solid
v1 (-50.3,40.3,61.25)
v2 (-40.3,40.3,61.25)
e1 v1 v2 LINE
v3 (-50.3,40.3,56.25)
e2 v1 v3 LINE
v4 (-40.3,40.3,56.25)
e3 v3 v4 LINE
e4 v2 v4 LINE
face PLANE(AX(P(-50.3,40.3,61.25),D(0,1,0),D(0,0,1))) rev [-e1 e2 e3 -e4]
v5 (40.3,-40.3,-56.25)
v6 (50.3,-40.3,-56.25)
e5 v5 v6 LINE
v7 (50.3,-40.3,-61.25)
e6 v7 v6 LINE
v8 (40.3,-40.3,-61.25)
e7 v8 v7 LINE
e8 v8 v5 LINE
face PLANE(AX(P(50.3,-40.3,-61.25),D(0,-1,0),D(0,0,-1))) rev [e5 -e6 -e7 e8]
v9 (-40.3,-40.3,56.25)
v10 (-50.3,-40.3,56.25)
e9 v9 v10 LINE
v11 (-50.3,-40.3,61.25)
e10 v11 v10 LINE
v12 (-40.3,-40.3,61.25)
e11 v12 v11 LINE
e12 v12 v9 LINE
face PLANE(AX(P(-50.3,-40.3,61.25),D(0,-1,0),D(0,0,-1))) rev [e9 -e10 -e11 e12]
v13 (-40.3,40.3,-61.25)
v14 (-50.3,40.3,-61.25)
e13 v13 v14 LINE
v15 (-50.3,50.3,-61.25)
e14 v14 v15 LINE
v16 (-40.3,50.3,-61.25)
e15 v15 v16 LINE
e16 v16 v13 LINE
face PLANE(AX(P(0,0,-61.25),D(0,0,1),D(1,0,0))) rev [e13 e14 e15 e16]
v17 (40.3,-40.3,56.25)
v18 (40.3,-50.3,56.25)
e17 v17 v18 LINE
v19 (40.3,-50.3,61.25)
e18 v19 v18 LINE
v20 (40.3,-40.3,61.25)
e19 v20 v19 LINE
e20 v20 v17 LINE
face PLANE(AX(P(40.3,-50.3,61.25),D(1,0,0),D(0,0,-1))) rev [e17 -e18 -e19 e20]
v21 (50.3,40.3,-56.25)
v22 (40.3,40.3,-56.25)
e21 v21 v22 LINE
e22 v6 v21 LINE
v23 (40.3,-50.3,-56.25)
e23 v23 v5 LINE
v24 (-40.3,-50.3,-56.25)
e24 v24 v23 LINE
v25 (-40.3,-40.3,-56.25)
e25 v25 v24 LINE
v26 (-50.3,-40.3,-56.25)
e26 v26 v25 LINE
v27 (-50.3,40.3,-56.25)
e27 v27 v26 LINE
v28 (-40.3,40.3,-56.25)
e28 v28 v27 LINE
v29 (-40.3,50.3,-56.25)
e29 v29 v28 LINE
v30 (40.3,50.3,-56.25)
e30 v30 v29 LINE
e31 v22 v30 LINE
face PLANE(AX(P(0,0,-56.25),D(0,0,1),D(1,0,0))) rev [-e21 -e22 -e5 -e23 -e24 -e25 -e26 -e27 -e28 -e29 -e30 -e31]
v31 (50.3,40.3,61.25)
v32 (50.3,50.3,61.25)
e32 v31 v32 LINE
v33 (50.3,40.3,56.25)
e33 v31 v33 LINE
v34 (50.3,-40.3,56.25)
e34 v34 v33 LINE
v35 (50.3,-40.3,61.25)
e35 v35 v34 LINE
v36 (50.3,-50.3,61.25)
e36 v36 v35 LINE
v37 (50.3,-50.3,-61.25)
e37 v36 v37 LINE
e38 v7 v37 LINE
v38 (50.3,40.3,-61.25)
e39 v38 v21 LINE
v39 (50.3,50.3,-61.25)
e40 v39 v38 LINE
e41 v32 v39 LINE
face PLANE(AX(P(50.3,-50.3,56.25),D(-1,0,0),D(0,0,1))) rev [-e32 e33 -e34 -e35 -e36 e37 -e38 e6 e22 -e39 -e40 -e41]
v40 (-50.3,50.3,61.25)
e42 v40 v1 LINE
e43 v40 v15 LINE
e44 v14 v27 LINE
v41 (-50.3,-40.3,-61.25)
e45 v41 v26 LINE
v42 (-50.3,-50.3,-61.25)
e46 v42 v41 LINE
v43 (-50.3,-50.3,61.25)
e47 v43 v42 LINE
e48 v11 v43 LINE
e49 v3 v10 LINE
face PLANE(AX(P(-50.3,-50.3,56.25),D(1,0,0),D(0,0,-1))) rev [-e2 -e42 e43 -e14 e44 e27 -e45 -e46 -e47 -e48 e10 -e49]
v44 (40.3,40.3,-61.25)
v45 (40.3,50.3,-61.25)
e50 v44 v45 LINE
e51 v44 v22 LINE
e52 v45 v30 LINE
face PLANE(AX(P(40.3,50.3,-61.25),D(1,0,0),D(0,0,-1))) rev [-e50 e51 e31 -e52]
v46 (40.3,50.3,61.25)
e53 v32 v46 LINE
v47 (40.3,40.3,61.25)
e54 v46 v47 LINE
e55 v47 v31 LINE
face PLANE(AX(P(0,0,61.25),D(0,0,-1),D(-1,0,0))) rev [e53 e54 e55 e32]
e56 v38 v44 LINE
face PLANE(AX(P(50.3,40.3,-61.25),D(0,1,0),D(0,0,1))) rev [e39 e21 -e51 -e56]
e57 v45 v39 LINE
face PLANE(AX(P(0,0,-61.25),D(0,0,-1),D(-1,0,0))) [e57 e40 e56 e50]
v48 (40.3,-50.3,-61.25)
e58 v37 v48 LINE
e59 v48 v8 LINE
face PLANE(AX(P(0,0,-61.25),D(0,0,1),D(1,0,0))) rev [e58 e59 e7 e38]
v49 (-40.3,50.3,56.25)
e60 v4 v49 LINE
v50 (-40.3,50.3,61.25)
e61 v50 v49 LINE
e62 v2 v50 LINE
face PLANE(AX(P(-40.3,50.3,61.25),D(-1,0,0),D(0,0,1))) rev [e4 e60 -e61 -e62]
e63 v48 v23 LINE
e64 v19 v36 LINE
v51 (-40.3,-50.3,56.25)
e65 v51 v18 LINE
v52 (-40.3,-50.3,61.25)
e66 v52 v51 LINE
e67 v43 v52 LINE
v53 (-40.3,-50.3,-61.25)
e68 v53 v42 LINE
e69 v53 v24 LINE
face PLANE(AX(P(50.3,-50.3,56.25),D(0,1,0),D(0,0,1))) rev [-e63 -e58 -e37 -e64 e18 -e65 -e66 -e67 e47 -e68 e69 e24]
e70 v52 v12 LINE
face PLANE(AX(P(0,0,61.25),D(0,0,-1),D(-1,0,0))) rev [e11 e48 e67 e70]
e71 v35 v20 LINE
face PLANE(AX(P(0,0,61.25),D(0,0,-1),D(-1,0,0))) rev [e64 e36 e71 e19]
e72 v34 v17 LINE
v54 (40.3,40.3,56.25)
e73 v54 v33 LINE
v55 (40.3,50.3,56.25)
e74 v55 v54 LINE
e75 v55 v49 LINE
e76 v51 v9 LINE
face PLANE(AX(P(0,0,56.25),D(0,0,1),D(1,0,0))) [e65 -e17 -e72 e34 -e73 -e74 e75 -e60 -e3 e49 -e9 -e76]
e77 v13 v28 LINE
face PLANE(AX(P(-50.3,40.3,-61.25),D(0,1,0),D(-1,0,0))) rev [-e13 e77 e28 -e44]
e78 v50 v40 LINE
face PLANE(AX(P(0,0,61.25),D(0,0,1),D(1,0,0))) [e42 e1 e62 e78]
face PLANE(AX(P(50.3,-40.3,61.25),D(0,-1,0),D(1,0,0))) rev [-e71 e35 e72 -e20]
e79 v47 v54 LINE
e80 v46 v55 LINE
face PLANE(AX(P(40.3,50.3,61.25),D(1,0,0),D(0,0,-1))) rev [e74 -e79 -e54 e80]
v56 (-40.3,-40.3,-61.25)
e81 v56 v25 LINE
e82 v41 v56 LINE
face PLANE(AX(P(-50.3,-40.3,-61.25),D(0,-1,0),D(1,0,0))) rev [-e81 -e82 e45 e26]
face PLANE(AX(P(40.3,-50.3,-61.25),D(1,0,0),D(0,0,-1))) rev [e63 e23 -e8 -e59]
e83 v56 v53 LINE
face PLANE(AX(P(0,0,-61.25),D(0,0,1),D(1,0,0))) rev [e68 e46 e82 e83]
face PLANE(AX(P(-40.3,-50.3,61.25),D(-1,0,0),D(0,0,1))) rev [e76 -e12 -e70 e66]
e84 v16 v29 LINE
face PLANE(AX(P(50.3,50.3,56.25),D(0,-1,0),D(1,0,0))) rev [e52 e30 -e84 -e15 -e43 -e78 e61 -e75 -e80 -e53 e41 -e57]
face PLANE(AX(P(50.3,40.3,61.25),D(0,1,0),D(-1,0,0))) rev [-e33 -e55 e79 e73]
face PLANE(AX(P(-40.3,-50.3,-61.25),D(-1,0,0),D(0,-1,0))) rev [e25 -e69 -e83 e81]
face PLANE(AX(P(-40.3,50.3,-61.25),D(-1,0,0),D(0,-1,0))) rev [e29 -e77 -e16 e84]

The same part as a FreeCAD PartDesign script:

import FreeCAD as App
import Part
import Sketcher
Q = App.Units.Quantity


def add_polygon(sketch, points):
    """Adds a closed chain of lines whose ends are joined by coincident constraints."""
    first, n = sketch.GeometryCount, len(points)
    for a, b in zip(points, points[1:] + points[:1]):
        sketch.addGeometry(Part.LineSegment(App.Vector(*a, 0), App.Vector(*b, 0)), False)
    for i in range(n):
        sketch.addConstraint(Sketcher.Constraint("Coincident", first + i, 2, first + (i + 1) % n, 1))

doc = App.newDocument("Part")
body = doc.addObject("PartDesign::Body", "Body")

# Sketch on XY plane
sketch1 = body.newObject("Sketcher::SketchObject", "Sketch")
sketch1.AttachmentSupport = (doc.getObject("XY_Plane"), [""])
sketch1.MapMode = "FlatFace"
add_polygon(sketch1, [(-50, 50), (-50, -50), (50, -50), (50, 50)])  # lines 0-3
sketch1.addConstraint([
    Sketcher.Constraint("Vertical", 0),
    Sketcher.Constraint("Horizontal", 1),
    Sketcher.Constraint("Vertical", 2),
    Sketcher.Constraint("Horizontal", 3),
    Sketcher.Constraint("Symmetric", 0, 2, 2, 2, -1, 1),
    Sketcher.Constraint("Equal", 3, 0),
    Sketcher.Constraint("DistanceX", 1, 1, 1, 2, Q("100.6 mm")),
])
pad1 = body.newObject("PartDesign::Pad", "Pad")
pad1.Profile = sketch1
pad1.Length = 112.5
pad1.Midplane = True

# Sketch on XY plane
sketch2 = body.newObject("Sketcher::SketchObject", "Sketch001")
sketch2.AttachmentSupport = (doc.getObject("XY_Plane"), [""])
sketch2.MapMode = "FlatFace"
sketch2.AttachmentOffset = App.Placement(App.Vector(0, 0, 56.25), App.Rotation())
add_polygon(sketch2, [(-50, 50), (-50, 40), (-40, 40), (-40, 50)])  # lines 0-3
add_polygon(sketch2, [(40, 50), (40, 40), (50, 40), (50, 50)])  # lines 4-7
add_polygon(sketch2, [(40, -40), (40, -50), (50, -50), (50, -40)])  # lines 8-11
add_polygon(sketch2, [(-50, -40), (-50, -50), (-40, -50), (-40, -40)])  # lines 12-15
sketch2.addConstraint([
    Sketcher.Constraint("Vertical", 0),
    Sketcher.Constraint("Horizontal", 1),
    Sketcher.Constraint("Vertical", 2),
    Sketcher.Constraint("Horizontal", 3),
    Sketcher.Constraint("Vertical", 4),
    Sketcher.Constraint("Horizontal", 5),
    Sketcher.Constraint("Vertical", 6),
    Sketcher.Constraint("Horizontal", 7),
    Sketcher.Constraint("Vertical", 8),
    Sketcher.Constraint("Horizontal", 9),
    Sketcher.Constraint("Vertical", 10),
    Sketcher.Constraint("Horizontal", 11),
    Sketcher.Constraint("Vertical", 12),
    Sketcher.Constraint("Horizontal", 13),
    Sketcher.Constraint("Vertical", 14),
    Sketcher.Constraint("Horizontal", 15),
    Sketcher.Constraint("Symmetric", 2, 2, 8, 2, -1, 1),
    Sketcher.Constraint("Symmetric", 0, 2, 10, 2, -1, 1),
    Sketcher.Constraint("Symmetric", 6, 2, 12, 2, -1, 1),
    Sketcher.Constraint("Symmetric", 4, 2, 14, 2, -1, 1),
    Sketcher.Constraint("Symmetric", 1, 2, 4, 2, -2),
    Sketcher.Constraint("Symmetric", 3, 2, 6, 2, -2),
    Sketcher.Constraint("Equal", 15, 0),
    Sketcher.Constraint("DistanceX", 1, 1, 1, 2, Q("10 mm")),
    Sketcher.Constraint("DistanceX", 0, 2, -1, 1, Q("50.3 mm")),
    Sketcher.Constraint("DistanceY", -1, 1, 0, 2, Q("40.3 mm")),
])
pad2 = body.newObject("PartDesign::Pad", "Pad001")
pad2.Profile = sketch2
pad2.Length = 5

# Sketch on XY plane
sketch3 = body.newObject("Sketcher::SketchObject", "Sketch002")
sketch3.AttachmentSupport = (doc.getObject("XY_Plane"), [""])
sketch3.MapMode = "FlatFace"
sketch3.AttachmentOffset = App.Placement(App.Vector(0, 0, -56.25), App.Rotation())
add_polygon(sketch3, [(50, 50), (50, 40), (40, 40), (40, 50)])  # lines 0-3
add_polygon(sketch3, [(-40, 50), (-40, 40), (-50, 40), (-50, 50)])  # lines 4-7
add_polygon(sketch3, [(-40, -40), (-40, -50), (-50, -50), (-50, -40)])  # lines 8-11
add_polygon(sketch3, [(50, -40), (50, -50), (40, -50), (40, -40)])  # lines 12-15
sketch3.addConstraint([
    Sketcher.Constraint("Vertical", 0),
    Sketcher.Constraint("Horizontal", 1),
    Sketcher.Constraint("Vertical", 2),
    Sketcher.Constraint("Horizontal", 3),
    Sketcher.Constraint("Vertical", 4),
    Sketcher.Constraint("Horizontal", 5),
    Sketcher.Constraint("Vertical", 6),
    Sketcher.Constraint("Horizontal", 7),
    Sketcher.Constraint("Vertical", 8),
    Sketcher.Constraint("Horizontal", 9),
    Sketcher.Constraint("Vertical", 10),
    Sketcher.Constraint("Horizontal", 11),
    Sketcher.Constraint("Vertical", 12),
    Sketcher.Constraint("Horizontal", 13),
    Sketcher.Constraint("Vertical", 14),
    Sketcher.Constraint("Horizontal", 15),
    Sketcher.Constraint("Symmetric", 2, 2, 8, 2, -1, 1),
    Sketcher.Constraint("Symmetric", 0, 2, 10, 2, -1, 1),
    Sketcher.Constraint("Symmetric", 6, 2, 12, 2, -1, 1),
    Sketcher.Constraint("Symmetric", 4, 2, 14, 2, -1, 1),
    Sketcher.Constraint("Symmetric", 1, 2, 4, 2, -2),
    Sketcher.Constraint("Symmetric", 3, 2, 6, 2, -2),
    Sketcher.Constraint("Equal", 15, 0),
    Sketcher.Constraint("DistanceX", 1, 2, 1, 1, Q("10 mm")),
    Sketcher.Constraint("DistanceX", -1, 1, 0, 2, Q("50.3 mm")),
    Sketcher.Constraint("DistanceY", -1, 1, 0, 2, Q("40.3 mm")),
])
pad3 = body.newObject("PartDesign::Pad", "Pad002")
pad3.Profile = sketch3
pad3.Length = 5
pad3.Reversed = True

doc.recompute()
